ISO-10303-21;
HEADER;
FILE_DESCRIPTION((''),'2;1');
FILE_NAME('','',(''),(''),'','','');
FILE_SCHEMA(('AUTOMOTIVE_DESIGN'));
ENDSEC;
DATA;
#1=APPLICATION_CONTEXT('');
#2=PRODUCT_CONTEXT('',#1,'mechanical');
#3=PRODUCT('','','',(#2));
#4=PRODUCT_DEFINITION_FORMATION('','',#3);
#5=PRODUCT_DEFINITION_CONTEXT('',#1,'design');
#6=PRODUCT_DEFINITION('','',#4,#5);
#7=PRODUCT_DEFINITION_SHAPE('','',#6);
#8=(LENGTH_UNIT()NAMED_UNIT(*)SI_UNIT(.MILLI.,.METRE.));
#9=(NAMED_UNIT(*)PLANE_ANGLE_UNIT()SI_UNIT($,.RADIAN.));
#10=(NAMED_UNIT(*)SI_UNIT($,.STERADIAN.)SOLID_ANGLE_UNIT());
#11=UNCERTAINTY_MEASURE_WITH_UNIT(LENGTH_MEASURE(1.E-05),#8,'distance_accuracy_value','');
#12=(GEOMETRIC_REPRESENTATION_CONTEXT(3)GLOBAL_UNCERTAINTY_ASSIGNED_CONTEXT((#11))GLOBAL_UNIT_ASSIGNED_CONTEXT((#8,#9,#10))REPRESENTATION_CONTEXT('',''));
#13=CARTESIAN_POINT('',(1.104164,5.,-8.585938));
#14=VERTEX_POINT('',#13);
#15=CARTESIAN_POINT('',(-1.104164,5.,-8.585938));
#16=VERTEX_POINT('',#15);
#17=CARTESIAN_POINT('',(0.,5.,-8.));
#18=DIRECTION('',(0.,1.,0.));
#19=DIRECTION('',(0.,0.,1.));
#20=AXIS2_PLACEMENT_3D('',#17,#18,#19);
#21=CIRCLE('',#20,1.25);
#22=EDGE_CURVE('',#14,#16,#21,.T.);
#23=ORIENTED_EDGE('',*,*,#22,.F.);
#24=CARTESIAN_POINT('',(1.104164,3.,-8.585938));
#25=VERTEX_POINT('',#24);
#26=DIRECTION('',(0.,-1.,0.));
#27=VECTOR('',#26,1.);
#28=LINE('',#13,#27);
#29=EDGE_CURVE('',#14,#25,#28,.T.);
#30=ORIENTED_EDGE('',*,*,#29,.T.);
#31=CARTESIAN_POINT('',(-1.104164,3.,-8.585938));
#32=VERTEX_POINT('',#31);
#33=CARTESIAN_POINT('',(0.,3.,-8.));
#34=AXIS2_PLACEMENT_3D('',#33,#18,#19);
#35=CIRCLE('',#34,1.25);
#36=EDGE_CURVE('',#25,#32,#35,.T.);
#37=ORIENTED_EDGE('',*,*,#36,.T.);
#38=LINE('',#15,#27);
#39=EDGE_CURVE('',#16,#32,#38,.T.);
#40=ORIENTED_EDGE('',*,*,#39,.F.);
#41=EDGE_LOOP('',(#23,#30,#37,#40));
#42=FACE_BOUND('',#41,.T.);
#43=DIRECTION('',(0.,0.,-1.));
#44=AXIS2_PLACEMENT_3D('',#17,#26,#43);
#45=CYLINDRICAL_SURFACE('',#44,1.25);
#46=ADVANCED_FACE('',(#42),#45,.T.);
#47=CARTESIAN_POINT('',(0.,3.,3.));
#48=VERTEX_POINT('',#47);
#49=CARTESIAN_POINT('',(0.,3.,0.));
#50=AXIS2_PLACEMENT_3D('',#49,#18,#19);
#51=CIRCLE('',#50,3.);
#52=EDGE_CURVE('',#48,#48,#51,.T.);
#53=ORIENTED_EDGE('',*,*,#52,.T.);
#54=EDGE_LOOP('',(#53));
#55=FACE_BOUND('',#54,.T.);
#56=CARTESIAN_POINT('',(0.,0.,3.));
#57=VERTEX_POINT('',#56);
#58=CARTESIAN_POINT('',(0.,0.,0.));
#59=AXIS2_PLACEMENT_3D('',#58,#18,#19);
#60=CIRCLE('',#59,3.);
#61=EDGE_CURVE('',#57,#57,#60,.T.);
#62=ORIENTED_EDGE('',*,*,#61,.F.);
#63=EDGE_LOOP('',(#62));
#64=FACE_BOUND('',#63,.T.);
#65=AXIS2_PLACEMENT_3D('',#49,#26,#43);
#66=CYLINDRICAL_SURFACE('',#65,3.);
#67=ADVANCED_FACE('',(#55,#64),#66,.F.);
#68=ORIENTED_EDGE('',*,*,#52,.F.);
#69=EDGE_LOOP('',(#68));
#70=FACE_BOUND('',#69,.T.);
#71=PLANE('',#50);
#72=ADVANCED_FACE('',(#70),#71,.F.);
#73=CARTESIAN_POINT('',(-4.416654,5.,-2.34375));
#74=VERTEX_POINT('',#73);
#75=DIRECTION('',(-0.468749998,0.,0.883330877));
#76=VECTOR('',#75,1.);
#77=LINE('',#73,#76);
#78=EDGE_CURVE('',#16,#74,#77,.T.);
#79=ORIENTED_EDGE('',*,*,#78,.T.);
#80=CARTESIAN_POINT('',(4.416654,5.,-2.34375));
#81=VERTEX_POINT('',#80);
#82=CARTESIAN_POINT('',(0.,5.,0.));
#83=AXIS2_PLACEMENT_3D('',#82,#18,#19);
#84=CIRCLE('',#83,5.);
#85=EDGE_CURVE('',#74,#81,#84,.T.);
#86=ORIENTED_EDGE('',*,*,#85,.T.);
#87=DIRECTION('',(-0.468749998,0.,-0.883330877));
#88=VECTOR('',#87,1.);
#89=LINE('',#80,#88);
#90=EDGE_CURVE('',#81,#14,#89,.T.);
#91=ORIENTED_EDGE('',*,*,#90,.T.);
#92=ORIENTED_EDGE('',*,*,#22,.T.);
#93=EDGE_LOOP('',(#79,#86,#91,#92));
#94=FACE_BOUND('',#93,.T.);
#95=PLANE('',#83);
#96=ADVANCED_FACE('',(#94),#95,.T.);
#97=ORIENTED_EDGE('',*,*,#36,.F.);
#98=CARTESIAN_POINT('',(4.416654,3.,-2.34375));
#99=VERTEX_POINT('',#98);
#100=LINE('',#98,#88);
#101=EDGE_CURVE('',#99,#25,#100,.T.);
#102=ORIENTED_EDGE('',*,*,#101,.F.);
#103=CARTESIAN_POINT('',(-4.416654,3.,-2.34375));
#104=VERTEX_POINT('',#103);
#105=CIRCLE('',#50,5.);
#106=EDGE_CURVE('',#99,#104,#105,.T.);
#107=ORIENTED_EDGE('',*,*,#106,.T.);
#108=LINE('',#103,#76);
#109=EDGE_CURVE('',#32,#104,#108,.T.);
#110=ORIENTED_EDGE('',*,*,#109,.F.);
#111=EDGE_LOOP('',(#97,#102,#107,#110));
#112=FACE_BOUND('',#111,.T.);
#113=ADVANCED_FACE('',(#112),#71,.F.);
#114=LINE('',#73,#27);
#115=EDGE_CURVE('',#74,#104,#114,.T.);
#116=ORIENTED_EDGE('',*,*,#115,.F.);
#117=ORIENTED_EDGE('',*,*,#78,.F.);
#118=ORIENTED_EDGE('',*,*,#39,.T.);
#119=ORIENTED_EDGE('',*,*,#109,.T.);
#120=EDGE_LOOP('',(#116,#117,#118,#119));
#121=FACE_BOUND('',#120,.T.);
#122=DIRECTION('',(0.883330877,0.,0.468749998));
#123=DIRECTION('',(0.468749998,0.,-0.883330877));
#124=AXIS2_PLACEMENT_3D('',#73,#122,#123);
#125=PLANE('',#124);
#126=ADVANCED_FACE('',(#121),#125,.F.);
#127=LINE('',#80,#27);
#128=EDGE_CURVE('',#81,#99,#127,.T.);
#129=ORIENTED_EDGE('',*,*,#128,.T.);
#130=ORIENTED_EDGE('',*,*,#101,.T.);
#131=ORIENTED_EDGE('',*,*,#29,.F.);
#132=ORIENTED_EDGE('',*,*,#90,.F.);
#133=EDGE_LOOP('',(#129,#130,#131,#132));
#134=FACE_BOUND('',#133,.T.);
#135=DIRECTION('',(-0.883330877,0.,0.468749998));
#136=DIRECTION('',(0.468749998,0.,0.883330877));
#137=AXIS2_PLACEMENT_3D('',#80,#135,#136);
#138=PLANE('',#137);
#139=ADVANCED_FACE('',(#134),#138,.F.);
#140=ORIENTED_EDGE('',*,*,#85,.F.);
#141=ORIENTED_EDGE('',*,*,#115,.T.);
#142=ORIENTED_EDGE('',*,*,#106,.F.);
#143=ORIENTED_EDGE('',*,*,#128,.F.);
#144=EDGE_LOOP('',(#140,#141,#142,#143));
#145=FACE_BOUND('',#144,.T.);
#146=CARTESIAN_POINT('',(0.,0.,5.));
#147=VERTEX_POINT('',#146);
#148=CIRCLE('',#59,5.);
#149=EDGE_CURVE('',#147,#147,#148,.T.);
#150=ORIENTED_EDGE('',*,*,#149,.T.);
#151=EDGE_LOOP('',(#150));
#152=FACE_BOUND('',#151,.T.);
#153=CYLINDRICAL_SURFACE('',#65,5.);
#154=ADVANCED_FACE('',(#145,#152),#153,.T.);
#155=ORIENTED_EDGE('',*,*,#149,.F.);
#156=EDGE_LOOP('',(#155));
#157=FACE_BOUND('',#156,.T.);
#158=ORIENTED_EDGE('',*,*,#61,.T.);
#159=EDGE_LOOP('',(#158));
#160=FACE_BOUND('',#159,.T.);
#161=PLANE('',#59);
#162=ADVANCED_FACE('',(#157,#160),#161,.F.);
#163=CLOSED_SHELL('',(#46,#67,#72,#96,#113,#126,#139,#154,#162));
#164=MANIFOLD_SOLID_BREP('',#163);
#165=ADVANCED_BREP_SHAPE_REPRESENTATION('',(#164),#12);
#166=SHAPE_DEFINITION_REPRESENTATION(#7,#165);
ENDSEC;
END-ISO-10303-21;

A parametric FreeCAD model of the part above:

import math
import FreeCAD as App
import Part
import Sketcher
from FreeCAD import Vector
Q = App.Units.Quantity

doc = App.newDocument("Part")
body = doc.addObject("PartDesign::Body", "Body")

# Sketch on XZ plane
sketch1 = body.newObject("Sketcher::SketchObject", "Sketch")
sketch1.AttachmentSupport = (doc.getObject("XZ_Plane"), [""])
sketch1.MapMode = "FlatFace"
sketch1.addGeometry([
    Part.Circle(Vector(0, 0, 0), Vector(0, 0, 1), 5),
    Part.Circle(Vector(0, 0, 0), Vector(0, 0, 1), 3),
], False)
sketch1.addConstraint([
    Sketcher.Constraint("Coincident", 0, 3, -1, 1),
    Sketcher.Constraint("Coincident", 1, 3, -1, 1),
    Sketcher.Constraint("Diameter", 0, Q("10 mm")),
    Sketcher.Constraint("Diameter", 1, Q("6 mm")),
])
pad1 = body.newObject("PartDesign::Pad", "Pad")
pad1.Profile = sketch1
pad1.Length = 3
pad1.Reversed = True

# Sketch on XZ plane
sketch2 = body.newObject("Sketcher::SketchObject", "Sketch001")
sketch2.AttachmentSupport = (doc.getObject("XZ_Plane"), [""])
sketch2.MapMode = "FlatFace"
sketch2.AttachmentOffset = App.Placement(Vector(0, 0, -3), App.Rotation())
sketch2.addGeometry([
    Part.LineSegment(Vector(4.416654, -2.34375, 0), Vector(1.104164, -8.585938, 0)),
    Part.ArcOfCircle(Part.Circle(Vector(0, -8, 0), Vector(0, 0, 1), 1.25), math.radians(-152.046813), math.radians(-27.953187)),
    Part.LineSegment(Vector(-1.104164, -8.585938, 0), Vector(-4.416654, -2.34375, 0)),
    Part.ArcOfCircle(Part.Circle(Vector(0, 0, 0), Vector(0, 0, 1), 5), math.radians(-27.953187), math.radians(207.953187)),
], False)
sketch2.addConstraint([
    Sketcher.Constraint("Tangent", 0, 2, 1, 2),
    Sketcher.Constraint("Tangent", 1, 1, 2, 1),
    Sketcher.Constraint("Tangent", 2, 2, 3, 2),
    Sketcher.Constraint("Tangent", 3, 1, 0, 1),
    Sketcher.Constraint("Coincident", 3, 3, -1, 1),
    Sketcher.Constraint("PointOnObject", 1, 3, -2),
    Sketcher.Constraint("Radius", 3, Q("5 mm")),
    Sketcher.Constraint("Radius", 1, Q("1.25 mm")),
    Sketcher.Constraint("DistanceY", 1, 3, -1, 1, Q("8 mm")),
])
pad2 = body.newObject("PartDesign::Pad", "Pad001")
pad2.Profile = sketch2
pad2.Length = 2
pad2.Reversed = True

doc.recompute()
